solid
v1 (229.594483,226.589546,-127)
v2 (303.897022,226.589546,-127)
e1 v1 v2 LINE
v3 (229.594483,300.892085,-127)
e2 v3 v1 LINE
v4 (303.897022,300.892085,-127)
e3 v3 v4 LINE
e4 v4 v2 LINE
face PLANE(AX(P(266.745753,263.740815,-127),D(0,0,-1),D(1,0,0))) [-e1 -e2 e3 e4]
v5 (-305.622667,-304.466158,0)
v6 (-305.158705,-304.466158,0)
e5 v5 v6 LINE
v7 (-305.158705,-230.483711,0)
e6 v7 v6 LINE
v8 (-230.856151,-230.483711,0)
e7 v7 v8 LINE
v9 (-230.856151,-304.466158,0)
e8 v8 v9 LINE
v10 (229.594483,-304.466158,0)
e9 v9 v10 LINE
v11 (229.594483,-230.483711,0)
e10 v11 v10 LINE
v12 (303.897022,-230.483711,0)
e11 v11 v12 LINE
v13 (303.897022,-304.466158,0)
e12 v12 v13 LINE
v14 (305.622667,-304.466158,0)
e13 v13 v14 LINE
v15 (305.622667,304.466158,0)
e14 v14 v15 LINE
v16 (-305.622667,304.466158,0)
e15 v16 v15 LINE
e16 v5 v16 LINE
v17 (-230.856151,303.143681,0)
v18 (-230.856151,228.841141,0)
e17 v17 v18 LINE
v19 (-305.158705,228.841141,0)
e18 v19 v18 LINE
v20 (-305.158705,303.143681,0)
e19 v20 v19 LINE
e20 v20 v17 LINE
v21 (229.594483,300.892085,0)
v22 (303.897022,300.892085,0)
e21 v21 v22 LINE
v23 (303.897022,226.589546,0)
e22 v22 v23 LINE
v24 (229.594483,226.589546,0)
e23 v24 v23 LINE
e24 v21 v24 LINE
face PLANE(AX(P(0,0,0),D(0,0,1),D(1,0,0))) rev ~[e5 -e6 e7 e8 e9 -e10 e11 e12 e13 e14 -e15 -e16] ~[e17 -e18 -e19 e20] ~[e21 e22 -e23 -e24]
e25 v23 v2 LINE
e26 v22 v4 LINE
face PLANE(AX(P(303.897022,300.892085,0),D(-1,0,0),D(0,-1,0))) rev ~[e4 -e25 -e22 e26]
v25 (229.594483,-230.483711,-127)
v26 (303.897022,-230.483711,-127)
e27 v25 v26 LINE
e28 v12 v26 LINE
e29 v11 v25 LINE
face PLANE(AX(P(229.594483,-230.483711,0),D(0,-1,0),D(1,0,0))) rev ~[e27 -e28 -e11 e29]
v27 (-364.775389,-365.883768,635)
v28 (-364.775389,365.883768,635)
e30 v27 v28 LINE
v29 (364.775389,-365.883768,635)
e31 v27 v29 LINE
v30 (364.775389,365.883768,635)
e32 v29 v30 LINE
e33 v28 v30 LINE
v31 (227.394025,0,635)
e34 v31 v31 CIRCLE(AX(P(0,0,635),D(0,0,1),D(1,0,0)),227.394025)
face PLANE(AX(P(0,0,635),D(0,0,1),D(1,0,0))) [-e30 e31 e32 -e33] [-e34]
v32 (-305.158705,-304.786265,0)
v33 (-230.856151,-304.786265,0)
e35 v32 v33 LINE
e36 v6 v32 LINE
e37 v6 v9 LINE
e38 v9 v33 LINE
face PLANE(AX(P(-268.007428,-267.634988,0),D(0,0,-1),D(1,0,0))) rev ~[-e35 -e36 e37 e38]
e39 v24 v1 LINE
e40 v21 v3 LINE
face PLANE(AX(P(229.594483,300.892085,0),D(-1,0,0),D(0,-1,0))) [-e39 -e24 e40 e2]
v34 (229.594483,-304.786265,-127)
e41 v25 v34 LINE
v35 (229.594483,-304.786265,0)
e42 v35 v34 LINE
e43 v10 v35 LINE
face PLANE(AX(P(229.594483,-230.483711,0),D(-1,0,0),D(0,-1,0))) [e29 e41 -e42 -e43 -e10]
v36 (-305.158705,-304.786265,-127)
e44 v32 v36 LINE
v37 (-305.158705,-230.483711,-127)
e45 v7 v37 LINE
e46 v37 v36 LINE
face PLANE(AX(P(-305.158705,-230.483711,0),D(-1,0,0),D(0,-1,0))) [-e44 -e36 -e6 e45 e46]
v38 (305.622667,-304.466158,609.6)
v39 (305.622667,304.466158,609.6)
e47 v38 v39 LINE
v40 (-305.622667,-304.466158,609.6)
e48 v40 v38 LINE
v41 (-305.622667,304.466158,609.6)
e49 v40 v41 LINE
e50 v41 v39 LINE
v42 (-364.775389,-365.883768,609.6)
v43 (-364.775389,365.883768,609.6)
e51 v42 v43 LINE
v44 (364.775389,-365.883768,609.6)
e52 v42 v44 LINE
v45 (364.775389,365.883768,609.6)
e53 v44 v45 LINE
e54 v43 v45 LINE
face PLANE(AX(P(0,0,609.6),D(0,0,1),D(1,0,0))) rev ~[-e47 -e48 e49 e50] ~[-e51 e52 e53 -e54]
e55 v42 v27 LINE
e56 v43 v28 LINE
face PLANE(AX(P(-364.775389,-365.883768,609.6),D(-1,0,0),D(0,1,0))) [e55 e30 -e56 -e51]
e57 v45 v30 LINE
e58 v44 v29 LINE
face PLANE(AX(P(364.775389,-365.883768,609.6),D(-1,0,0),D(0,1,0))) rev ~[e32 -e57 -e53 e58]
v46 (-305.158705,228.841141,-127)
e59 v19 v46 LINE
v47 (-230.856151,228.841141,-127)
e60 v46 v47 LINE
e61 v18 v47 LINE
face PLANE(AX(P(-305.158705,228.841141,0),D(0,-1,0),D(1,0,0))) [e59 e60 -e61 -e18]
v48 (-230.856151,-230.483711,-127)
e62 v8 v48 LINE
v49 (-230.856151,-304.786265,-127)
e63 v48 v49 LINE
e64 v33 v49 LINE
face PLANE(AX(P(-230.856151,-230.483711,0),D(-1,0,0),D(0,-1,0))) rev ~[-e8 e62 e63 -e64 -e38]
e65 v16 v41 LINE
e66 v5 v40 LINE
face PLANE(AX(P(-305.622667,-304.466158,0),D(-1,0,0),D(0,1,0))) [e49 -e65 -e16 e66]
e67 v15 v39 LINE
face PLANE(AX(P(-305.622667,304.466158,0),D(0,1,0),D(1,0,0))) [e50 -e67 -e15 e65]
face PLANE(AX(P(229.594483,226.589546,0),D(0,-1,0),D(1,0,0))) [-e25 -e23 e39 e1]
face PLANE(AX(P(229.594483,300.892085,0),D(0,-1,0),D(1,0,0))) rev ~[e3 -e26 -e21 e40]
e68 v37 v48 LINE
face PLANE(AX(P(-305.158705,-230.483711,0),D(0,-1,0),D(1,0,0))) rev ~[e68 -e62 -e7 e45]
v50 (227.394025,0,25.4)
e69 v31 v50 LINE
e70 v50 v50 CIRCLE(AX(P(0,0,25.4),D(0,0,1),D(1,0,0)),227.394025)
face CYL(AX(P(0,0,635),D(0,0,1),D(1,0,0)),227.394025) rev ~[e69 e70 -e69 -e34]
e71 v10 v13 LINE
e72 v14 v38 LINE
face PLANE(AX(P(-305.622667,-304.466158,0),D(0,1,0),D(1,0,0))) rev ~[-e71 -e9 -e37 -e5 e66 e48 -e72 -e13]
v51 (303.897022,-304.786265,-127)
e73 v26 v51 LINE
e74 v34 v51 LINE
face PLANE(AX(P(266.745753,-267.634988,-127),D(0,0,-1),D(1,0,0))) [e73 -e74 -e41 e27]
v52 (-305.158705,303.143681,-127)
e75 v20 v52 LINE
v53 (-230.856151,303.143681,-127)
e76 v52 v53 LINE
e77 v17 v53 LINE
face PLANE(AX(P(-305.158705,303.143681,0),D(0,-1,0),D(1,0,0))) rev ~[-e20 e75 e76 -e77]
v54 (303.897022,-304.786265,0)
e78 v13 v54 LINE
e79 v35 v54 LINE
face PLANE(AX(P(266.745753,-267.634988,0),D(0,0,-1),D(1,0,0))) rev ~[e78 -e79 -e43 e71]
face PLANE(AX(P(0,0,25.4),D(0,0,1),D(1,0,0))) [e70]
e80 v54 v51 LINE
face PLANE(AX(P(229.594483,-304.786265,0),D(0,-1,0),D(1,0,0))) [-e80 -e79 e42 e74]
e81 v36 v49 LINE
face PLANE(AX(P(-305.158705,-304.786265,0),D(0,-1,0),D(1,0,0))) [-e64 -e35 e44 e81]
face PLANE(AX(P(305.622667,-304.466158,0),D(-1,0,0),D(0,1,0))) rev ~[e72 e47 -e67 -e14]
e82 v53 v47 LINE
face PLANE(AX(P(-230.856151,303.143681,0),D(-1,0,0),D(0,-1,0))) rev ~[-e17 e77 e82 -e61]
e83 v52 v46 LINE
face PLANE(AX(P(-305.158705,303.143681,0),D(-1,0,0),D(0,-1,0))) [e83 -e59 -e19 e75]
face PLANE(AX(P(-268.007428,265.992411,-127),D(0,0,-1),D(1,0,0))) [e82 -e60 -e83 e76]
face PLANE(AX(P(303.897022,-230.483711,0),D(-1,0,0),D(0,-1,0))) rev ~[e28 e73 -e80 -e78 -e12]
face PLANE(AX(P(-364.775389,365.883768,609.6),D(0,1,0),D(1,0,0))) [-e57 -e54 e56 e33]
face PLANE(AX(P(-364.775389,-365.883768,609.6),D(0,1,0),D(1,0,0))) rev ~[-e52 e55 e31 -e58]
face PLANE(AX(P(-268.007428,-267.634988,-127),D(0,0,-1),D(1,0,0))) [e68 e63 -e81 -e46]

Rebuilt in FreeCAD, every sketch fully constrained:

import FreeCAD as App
import Part
import Sketcher
Q = App.Units.Quantity


def add_polygon(sketch, points):
    """Adds a closed chain of lines whose ends are joined by coincident constraints."""
    first, n = sketch.GeometryCount, len(points)
    for a, b in zip(points, points[1:] + points[:1]):
        sketch.addGeometry(Part.LineSegment(App.Vector(*a, 0), App.Vector(*b, 0)), False)
    for i in range(n):
        sketch.addConstraint(Sketcher.Constraint("Coincident", first + i, 2, first + (i + 1) % n, 1))

doc = App.newDocument("Part")
body = doc.addObject("PartDesign::Body", "Body")

sketch1 = doc.addObject("Sketcher::SketchObject", "Sketch")
body.addObject(sketch1)
sketch1.AttachmentSupport = (doc.XY_Plane, [""])
sketch1.MapMode = "FlatFace"
add_polygon(sketch1, [(-306, 304), (-306, -304), (306, -304), (306, 304)])
sketch1.addConstraint(Sketcher.Constraint("Vertical", 0))
sketch1.addConstraint(Sketcher.Constraint("Horizontal", 1))
sketch1.addConstraint(Sketcher.Constraint("Vertical", 2))
sketch1.addConstraint(Sketcher.Constraint("Horizontal", 3))
sketch1.addConstraint(Sketcher.Constraint("Symmetric", 0, 2, 2, 2, -1, 1))
sketch1.addConstraint(Sketcher.Constraint("DistanceX", 1, 1, 1, 2, Q("611.245334 mm")))
sketch1.addConstraint(Sketcher.Constraint("DistanceY", 0, 2, 0, 1, Q("608.932316 mm")))
pad1 = doc.addObject("PartDesign::Pad", "Pad")
body.addObject(pad1)
pad1.Profile = sketch1
pad1.Length = Q("24 in")

sketch2 = doc.addObject("Sketcher::SketchObject", "Sketch001")
body.addObject(sketch2)
sketch2.AttachmentSupport = (doc.XY_Plane, [""])
sketch2.MapMode = "FlatFace"
sketch2.AttachmentOffset = App.Placement(App.Vector(0, 0, 24 * 25.4), App.Rotation())
add_polygon(sketch2, [(-365, 366), (-365, -366), (365, -366), (365, 366)])
sketch2.addConstraint(Sketcher.Constraint("Vertical", 0))
sketch2.addConstraint(Sketcher.Constraint("Horizontal", 1))
sketch2.addConstraint(Sketcher.Constraint("Vertical", 2))
sketch2.addConstraint(Sketcher.Constraint("Horizontal", 3))
sketch2.addConstraint(Sketcher.Constraint("Symmetric", 0, 2, 2, 2, -1, 1))
sketch2.addConstraint(Sketcher.Constraint("DistanceX", 1, 1, 1, 2, Q("729.550778 mm")))
sketch2.addConstraint(Sketcher.Constraint("DistanceY", 0, 2, 0, 1, Q("731.767536 mm")))
pad2 = doc.addObject("PartDesign::Pad", "Pad001")
body.addObject(pad2)
pad2.Profile = sketch2
pad2.Length = Q("1 in")

sketch3 = doc.addObject("Sketcher::SketchObject", "Sketch002")
body.addObject(sketch3)
sketch3.AttachmentSupport = (doc.XY_Plane, [""])
sketch3.MapMode = "FlatFace"
sketch3.AttachmentOffset = App.Placement(App.Vector(0, 0, 25 * 25.4), App.Rotation())
sketch3.addGeometry(Part.Circle(App.Vector(0, 0, 0), App.Vector(0, 0, 1), 227), False)
sketch3.addConstraint(Sketcher.Constraint("Coincident", 0, 3, -1, 1))
sketch3.addConstraint(Sketcher.Constraint("Diameter", 0, Q("454.78805 mm")))
pocket1 = doc.addObject("PartDesign::Pocket", "Pocket")
body.addObject(pocket1)
pocket1.Profile = sketch3
pocket1.Length = Q("24 in")

sketch4 = doc.addObject("Sketcher::SketchObject", "Sketch003")
body.addObject(sketch4)
sketch4.AttachmentSupport = (doc.XY_Plane, [""])
sketch4.MapMode = "FlatFace"
add_polygon(sketch4, [(-305, -305), (-305, -230), (-231, -230), (-231, -305)])
add_polygon(sketch4, [(230, -305), (230, -230), (304, -230), (304, -305)])
add_polygon(sketch4, [(230, 227), (230, 301), (304, 301), (304, 227)])
add_polygon(sketch4, [(-305, 229), (-305, 303), (-231, 303), (-231, 229)])
sketch4.addConstraint(Sketcher.Constraint("Vertical", 0))
sketch4.addConstraint(Sketcher.Constraint("Horizontal", 1))
sketch4.addConstraint(Sketcher.Constraint("Vertical", 2))
sketch4.addConstraint(Sketcher.Constraint("Horizontal", 3))
sketch4.addConstraint(Sketcher.Constraint("Vertical", 4))
sketch4.addConstraint(Sketcher.Constraint("Horizontal", 5))
sketch4.addConstraint(Sketcher.Constraint("Vertical", 6))
sketch4.addConstraint(Sketcher.Constraint("Horizontal", 7))
sketch4.addConstraint(Sketcher.Constraint("Vertical", 8))
sketch4.addConstraint(Sketcher.Constraint("Horizontal", 9))
sketch4.addConstraint(Sketcher.Constraint("Vertical", 10))
sketch4.addConstraint(Sketcher.Constraint("Horizontal", 11))
sketch4.addConstraint(Sketcher.Constraint("Vertical", 12))
sketch4.addConstraint(Sketcher.Constraint("Horizontal", 13))
sketch4.addConstraint(Sketcher.Constraint("Vertical", 14))
sketch4.addConstraint(Sketcher.Constraint("Horizontal", 15))
sketch4.addConstraint(Sketcher.Constraint("Horizontal", 1, 2, 4, 2))
sketch4.addConstraint(Sketcher.Constraint("Horizontal", 3, 2, 6, 2))
sketch4.addConstraint(Sketcher.Constraint("Vertical", 7, 2, 8, 2))
sketch4.addConstraint(Sketcher.Constraint("Vertical", 6, 2, 9, 2))
sketch4.addConstraint(Sketcher.Constraint("Vertical", 3, 2, 12, 2))
sketch4.addConstraint(Sketcher.Constraint("Vertical", 2, 2, 13, 2))
sketch4.addConstraint(Sketcher.Constraint("Equal", 15, 0))
sketch4.addConstraint(Sketcher.Constraint("Equal", 11, 8))
sketch4.addConstraint(Sketcher.Constraint("Equal", 10, 12))
sketch4.addConstraint(Sketcher.Constraint("DistanceX", 5, 1, 5, 2, Q("74.302539 mm")))
sketch4.addConstraint(Sketcher.Constraint("DistanceX", 1, 1, 1, 2, Q("74.302555 mm")))
sketch4.addConstraint(Sketcher.Constraint("DistanceY", 0, 2, -1, 1, Q("230.483711 mm")))
sketch4.addConstraint(Sketcher.Constraint("DistanceX", 1, 2, -1, 1, Q("230.856151 mm")))
sketch4.addConstraint(Sketcher.Constraint("DistanceY", -1, 1, 12, 2, Q("303.143681 mm")))
sketch4.addConstraint(Sketcher.Constraint("DistanceX", 0, 2, 4, 2, Q("534.753189 mm")))
sketch4.addConstraint(Sketcher.Constraint("DistanceY", 7, 2, 8, 2, Q("605.678349 mm")))
pad3 = doc.addObject("PartDesign::Pad", "Pad002")
body.addObject(pad3)
pad3.Profile = sketch4
pad3.Length = Q("5 in")
pad3.Reversed = True

doc.recompute()
